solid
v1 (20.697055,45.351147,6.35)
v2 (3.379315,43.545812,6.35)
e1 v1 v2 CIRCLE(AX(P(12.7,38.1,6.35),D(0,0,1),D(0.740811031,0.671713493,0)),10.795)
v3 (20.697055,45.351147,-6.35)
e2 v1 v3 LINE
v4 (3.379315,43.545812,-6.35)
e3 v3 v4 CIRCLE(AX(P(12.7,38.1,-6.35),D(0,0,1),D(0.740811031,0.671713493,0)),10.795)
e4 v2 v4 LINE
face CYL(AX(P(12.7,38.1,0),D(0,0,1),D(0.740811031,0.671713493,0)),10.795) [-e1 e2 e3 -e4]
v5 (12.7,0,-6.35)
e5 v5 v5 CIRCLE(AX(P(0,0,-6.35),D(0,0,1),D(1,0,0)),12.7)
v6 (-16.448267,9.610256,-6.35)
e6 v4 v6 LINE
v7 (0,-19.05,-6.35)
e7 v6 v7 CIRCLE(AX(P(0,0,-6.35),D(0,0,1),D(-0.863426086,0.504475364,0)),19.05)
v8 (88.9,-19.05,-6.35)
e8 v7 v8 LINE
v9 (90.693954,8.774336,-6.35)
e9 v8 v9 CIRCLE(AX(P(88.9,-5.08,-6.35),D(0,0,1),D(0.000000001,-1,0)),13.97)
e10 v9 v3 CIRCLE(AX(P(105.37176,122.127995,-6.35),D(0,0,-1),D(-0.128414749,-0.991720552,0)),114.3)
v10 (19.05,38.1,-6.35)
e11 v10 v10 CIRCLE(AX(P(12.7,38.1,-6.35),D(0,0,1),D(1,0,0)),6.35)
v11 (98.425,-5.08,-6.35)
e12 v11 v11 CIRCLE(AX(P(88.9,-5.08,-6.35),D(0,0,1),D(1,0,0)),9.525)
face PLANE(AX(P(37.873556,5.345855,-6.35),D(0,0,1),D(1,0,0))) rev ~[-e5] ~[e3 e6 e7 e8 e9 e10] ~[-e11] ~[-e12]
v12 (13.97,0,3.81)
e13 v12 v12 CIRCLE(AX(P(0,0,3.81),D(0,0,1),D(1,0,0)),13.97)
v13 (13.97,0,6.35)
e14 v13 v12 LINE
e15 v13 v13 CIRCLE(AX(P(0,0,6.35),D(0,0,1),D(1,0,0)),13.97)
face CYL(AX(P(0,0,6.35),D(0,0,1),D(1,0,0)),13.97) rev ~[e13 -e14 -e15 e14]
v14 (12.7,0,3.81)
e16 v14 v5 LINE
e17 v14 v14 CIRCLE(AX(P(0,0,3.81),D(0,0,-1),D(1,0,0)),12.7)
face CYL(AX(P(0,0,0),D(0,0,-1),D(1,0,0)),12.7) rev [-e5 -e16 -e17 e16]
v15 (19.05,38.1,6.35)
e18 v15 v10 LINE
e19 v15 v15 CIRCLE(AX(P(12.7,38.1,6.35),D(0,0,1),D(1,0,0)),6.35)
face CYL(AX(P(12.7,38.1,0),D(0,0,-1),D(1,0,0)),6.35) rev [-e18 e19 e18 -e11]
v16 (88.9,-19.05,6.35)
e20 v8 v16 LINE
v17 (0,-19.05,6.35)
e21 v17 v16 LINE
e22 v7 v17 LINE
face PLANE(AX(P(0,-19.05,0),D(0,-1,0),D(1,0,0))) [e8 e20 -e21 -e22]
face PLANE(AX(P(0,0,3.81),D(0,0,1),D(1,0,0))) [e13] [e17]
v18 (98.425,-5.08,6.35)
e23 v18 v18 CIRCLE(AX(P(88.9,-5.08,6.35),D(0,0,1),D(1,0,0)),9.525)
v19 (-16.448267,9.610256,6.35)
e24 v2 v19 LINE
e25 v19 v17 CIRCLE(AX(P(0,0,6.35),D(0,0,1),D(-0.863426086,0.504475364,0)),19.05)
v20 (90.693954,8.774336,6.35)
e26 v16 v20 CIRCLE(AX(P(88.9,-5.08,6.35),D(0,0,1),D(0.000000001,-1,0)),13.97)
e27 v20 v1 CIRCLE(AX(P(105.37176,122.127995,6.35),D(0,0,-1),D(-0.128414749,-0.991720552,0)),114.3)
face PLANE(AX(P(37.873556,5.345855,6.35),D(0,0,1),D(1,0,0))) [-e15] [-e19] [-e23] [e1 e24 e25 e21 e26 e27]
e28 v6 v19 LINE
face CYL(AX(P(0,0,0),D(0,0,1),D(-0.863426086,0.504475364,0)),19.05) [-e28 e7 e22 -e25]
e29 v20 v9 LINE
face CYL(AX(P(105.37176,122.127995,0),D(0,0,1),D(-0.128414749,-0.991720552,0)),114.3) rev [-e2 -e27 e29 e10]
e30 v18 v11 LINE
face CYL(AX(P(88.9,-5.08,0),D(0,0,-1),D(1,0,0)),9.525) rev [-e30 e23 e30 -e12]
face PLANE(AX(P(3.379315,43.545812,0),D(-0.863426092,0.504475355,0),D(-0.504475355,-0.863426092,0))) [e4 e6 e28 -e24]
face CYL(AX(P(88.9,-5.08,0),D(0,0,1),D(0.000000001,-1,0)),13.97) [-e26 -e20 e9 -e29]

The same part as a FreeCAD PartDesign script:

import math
import FreeCAD as App
import Part
import Sketcher
Q = App.Units.Quantity

doc = App.newDocument("Part")
body = doc.addObject("PartDesign::Body", "Body")

# Sketch on XY plane
sketch1 = body.newObject("Sketcher::SketchObject", "Sketch")
sketch1.AttachmentSupport = (doc.getObject("XY_Plane"), [""])
sketch1.MapMode = "FlatFace"
sketch1.addGeometry([
    Part.LineSegment(App.Vector(3, 44, 0), App.Vector(-16, 10, 0)),  # 0
    Part.ArcOfCircle(Part.Circle(App.Vector(0, 0, 0), App.Vector(0, 0, 1), 19), math.radians(150), math.radians(270)),  # 1
    Part.LineSegment(App.Vector(0, -19, 0), App.Vector(89, -19, 0)),  # 2
    Part.ArcOfCircle(Part.Circle(App.Vector(89, -5, 0), App.Vector(0, 0, 1), 14), math.radians(-90), math.radians(83)),  # 3
    Part.ArcOfCircle(Part.Circle(App.Vector(105, 122, 0), App.Vector(0, 0, 1), 114), math.radians(-138), math.radians(-97)),  # 4
    Part.ArcOfCircle(Part.Circle(App.Vector(13, 38, 0), App.Vector(0, 0, 1), 11), math.radians(42), math.radians(150)),  # 5
    Part.Circle(App.Vector(0, 0, 0), App.Vector(0, 0, 1), 13),  # 6
    Part.Circle(App.Vector(89, -5, 0), App.Vector(0, 0, 1), 10),  # 7
    Part.Circle(App.Vector(13, 38, 0), App.Vector(0, 0, 1), 6),  # 8
], False)
sketch1.addConstraint([
    Sketcher.Constraint("Tangent", 0, 2, 1, 1),
    Sketcher.Constraint("Tangent", 1, 2, 2, 1),
    Sketcher.Constraint("Tangent", 2, 2, 3, 1),
    Sketcher.Constraint("Tangent", 3, 2, 4, 2),
    Sketcher.Constraint("Tangent", 4, 1, 5, 1),
    Sketcher.Constraint("Tangent", 5, 2, 0, 1),
    Sketcher.Constraint("Horizontal", 2),
    Sketcher.Constraint("Coincident", 1, 3, -1, 1),
    Sketcher.Constraint("Coincident", 6, 3, -1, 1),
    Sketcher.Constraint("Coincident", 7, 3, 3, 3),
    Sketcher.Constraint("Coincident", 8, 3, 5, 3),
    Sketcher.Constraint("Diameter", 6, Q("1 in")),
    Sketcher.Constraint("Diameter", 8, Q("0.5 in")),
    Sketcher.Constraint("Radius", 4, Q("4.5 in")),
    Sketcher.Constraint("Diameter", 7, Q("0.75 in")),
    Sketcher.Constraint("Radius", 1, Q("0.75 in")),
    Sketcher.Constraint("Radius", 3, Q("0.55 in")),
    Sketcher.Constraint("DistanceX", 2, 1, 2, 2, Q("3.5 in")),
    Sketcher.Constraint("Radius", 5, Q("0.425 in")),
    Sketcher.Constraint("DistanceX", 5, 3, 3, 3, Q("3 in")),
    Sketcher.Constraint("DistanceY", -1, 1, 5, 3, Q("1.5 in")),
])
pad1 = body.newObject("PartDesign::Pad", "Pad")
pad1.Profile = sketch1
pad1.Length = Q("0.5 in")
pad1.Midplane = True

# Sketch on XY plane
sketch2 = body.newObject("Sketcher::SketchObject", "Sketch001")
sketch2.AttachmentSupport = (doc.getObject("XY_Plane"), [""])
sketch2.MapMode = "FlatFace"
sketch2.AttachmentOffset = App.Placement(App.Vector(0, 0, 0.25 * 25.4), App.Rotation())
sketch2.addGeometry(Part.Circle(App.Vector(0, 0, 0), App.Vector(0, 0, 1), 14), False)
sketch2.addConstraint([
    Sketcher.Constraint("Coincident", 0, 3, -1, 1),
    Sketcher.Constraint("Diameter", 0, Q("1.1 in")),
])
pocket1 = body.newObject("PartDesign::Pocket", "Pocket")
pocket1.Profile = sketch2
pocket1.Length = Q("0.1 in")

doc.recompute()
